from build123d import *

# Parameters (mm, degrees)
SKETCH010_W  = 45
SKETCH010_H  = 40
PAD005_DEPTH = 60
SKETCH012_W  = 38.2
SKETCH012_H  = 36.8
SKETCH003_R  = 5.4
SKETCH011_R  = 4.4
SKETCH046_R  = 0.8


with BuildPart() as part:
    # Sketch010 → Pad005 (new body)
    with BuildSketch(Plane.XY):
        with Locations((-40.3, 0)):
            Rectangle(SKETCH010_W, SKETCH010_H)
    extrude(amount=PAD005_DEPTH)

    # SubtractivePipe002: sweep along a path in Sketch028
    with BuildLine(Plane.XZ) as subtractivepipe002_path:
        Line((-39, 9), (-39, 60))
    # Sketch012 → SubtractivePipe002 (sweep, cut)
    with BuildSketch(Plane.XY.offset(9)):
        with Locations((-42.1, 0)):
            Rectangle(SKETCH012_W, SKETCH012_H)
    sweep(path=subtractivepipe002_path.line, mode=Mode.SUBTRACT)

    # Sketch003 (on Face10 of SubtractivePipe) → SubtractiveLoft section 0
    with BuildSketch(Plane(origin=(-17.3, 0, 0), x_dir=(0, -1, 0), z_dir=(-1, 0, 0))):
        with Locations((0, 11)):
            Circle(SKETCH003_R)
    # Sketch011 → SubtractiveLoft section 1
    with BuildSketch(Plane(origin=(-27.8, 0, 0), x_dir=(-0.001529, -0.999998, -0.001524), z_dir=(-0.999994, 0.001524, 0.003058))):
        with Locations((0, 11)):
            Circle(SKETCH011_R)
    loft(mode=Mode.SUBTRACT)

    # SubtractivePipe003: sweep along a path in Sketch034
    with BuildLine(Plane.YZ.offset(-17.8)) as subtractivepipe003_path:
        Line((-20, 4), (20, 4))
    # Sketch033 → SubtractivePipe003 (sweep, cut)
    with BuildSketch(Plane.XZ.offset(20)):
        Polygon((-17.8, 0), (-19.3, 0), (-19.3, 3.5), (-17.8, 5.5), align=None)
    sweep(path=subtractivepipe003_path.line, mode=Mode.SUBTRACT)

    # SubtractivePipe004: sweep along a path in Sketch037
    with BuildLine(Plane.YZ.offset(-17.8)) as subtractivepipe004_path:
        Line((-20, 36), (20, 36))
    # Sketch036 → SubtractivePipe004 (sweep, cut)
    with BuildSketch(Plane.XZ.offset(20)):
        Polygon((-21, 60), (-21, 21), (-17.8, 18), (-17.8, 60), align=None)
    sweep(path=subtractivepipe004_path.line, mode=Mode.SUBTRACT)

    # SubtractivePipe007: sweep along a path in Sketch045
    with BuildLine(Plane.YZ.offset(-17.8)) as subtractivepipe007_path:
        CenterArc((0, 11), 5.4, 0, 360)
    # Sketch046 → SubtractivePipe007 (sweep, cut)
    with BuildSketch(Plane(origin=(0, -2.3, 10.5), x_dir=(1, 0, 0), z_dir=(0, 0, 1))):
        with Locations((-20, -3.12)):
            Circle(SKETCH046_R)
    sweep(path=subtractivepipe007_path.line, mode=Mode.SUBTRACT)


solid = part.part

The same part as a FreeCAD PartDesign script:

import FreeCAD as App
import Part
import Sketcher
from FreeCAD import Vector
Q = App.Units.Quantity

doc = App.newDocument("Part")
body = doc.addObject("PartDesign::Body", "Body")

# Sketch on XY plane
sketch1 = body.newObject("Sketcher::SketchObject", "Sketch")
sketch1.AttachmentSupport = (doc.getObject("XY_Plane"), [""])
sketch1.MapMode = "FlatFace"
sketch1.addGeometry(Part.LineSegment(Vector(-62.8, 20, 0), Vector(-62.8, -20, 0)), False)
sketch1.addGeometry(Part.LineSegment(Vector(-62.8, -20, 0), Vector(-17.8, -20, 0)), False)
sketch1.addGeometry(Part.LineSegment(Vector(-17.8, -20, 0), Vector(-17.8, 20, 0)), False)
sketch1.addGeometry(Part.LineSegment(Vector(-17.8, 20, 0), Vector(-62.8, 20, 0)), False)
sketch1.addConstraint(Sketcher.Constraint("Coincident", 0, 2, 1, 1))
sketch1.addConstraint(Sketcher.Constraint("Coincident", 1, 2, 2, 1))
sketch1.addConstraint(Sketcher.Constraint("Coincident", 2, 2, 3, 1))
sketch1.addConstraint(Sketcher.Constraint("Coincident", 3, 2, 0, 1))
sketch1.addConstraint(Sketcher.Constraint("Vertical", 0))
sketch1.addConstraint(Sketcher.Constraint("Horizontal", 1))
sketch1.addConstraint(Sketcher.Constraint("Vertical", 2))
sketch1.addConstraint(Sketcher.Constraint("Horizontal", 3))
sketch1.addConstraint(Sketcher.Constraint("DistanceX", 1, 1, 1, 2, Q("45 mm")))
sketch1.addConstraint(Sketcher.Constraint("DistanceY", 0, 2, 0, 1, Q("40 mm")))
sketch1.addConstraint(Sketcher.Constraint("DistanceY", 0, 2, -1, 1, Q("20 mm")))
sketch1.addConstraint(Sketcher.Constraint("DistanceX", 0, 2, -1, 1, Q("62.8 mm")))
pad1 = body.newObject("PartDesign::Pad", "Pad")
pad1.Profile = sketch1
pad1.Length = 60

# Sketch on XY plane
sketch2 = body.newObject("Sketcher::SketchObject", "Sketch001")
sketch2.AttachmentSupport = (doc.getObject("XY_Plane"), [""])
sketch2.MapMode = "FlatFace"
sketch2.AttachmentOffset = App.Placement(Vector(0, 0, 9), App.Rotation())
sketch2.addGeometry(Part.LineSegment(Vector(-61.2, 18.4, 0), Vector(-61.2, -18.4, 0)), False)
sketch2.addGeometry(Part.LineSegment(Vector(-61.2, -18.4, 0), Vector(-23, -18.4, 0)), False)
sketch2.addGeometry(Part.LineSegment(Vector(-23, -18.4, 0), Vector(-23, 18.4, 0)), False)
sketch2.addGeometry(Part.LineSegment(Vector(-23, 18.4, 0), Vector(-61.2, 18.4, 0)), False)
sketch2.addConstraint(Sketcher.Constraint("Coincident", 0, 2, 1, 1))
sketch2.addConstraint(Sketcher.Constraint("Coincident", 1, 2, 2, 1))
sketch2.addConstraint(Sketcher.Constraint("Coincident", 2, 2, 3, 1))
sketch2.addConstraint(Sketcher.Constraint("Coincident", 3, 2, 0, 1))
sketch2.addConstraint(Sketcher.Constraint("Vertical", 0))
sketch2.addConstraint(Sketcher.Constraint("Horizontal", 1))
sketch2.addConstraint(Sketcher.Constraint("Vertical", 2))
sketch2.addConstraint(Sketcher.Constraint("Horizontal", 3))
sketch2.addConstraint(Sketcher.Constraint("DistanceX", 1, 1, 1, 2, Q("38.2 mm")))
sketch2.addConstraint(Sketcher.Constraint("DistanceY", 0, 2, 0, 1, Q("36.8 mm")))
sketch2.addConstraint(Sketcher.Constraint("DistanceX", 1, 2, -1, 1, Q("23 mm")))
sketch2.addConstraint(Sketcher.Constraint("DistanceY", 0, 2, -1, 1, Q("18.4 mm")))

# Sketch on XZ plane
sketch3 = body.newObject("Sketcher::SketchObject", "Sketch002")
sketch3.AttachmentSupport = (doc.getObject("XZ_Plane"), [""])
sketch3.MapMode = "FlatFace"
sketch3.addGeometry(Part.LineSegment(Vector(-39, 9, 0), Vector(-39, 60, 0)), False)
sketch3.addConstraint(Sketcher.Constraint("Vertical", 0))
sketch3.addConstraint(Sketcher.Constraint("DistanceY", 0, 1, 0, 2, Q("51 mm")))
sketch3.addConstraint(Sketcher.Constraint("DistanceX", 0, 1, -1, 1, Q("39 mm")))
sketch3.addConstraint(Sketcher.Constraint("DistanceY", -1, 1, 0, 1, Q("9 mm")))
doc.recompute()

subtractivepipe = body.newObject("PartDesign::SubtractivePipe", "SubtractivePipe")
subtractivepipe.Profile = sketch2
subtractivepipe.Spine = (sketch3, ["Edge1"])

# Sketch on YZ plane
sketch4 = body.newObject("Sketcher::SketchObject", "Sketch003")
sketch4.AttachmentSupport = (doc.getObject("YZ_Plane"), [""])
sketch4.MapMode = "FlatFace"
sketch4.AttachmentOffset = App.Placement(Vector(0, 0, -17.3), App.Rotation())
sketch4.addGeometry(Part.Circle(Vector(0, 11, 0), Vector(0, 0, 1), 5.4), False)
sketch4.addConstraint(Sketcher.Constraint("PointOnObject", 0, 3, -2))
sketch4.addConstraint(Sketcher.Constraint("Diameter", 0, Q("10.8 mm")))
sketch4.addConstraint(Sketcher.Constraint("DistanceY", -1, 1, 0, 3, Q("11 mm")))

# Sketch on an angled plane
sketch5 = body.newObject("Sketcher::SketchObject", "Sketch004")
sketch5.Placement = App.Placement(Vector(-27.8, 0, 0), App.Rotation(Vector(-0.001528666, -0.99999767, -0.001524001), Vector(0.00305567, -0.001528667, 0.999994163), Vector(-0.999994163, 0.001524, 0.003058), "ZXY"))
sketch5.addGeometry(Part.Circle(Vector(0, 11, 0), Vector(0, 0, 1), 4.4), False)
sketch5.addConstraint(Sketcher.Constraint("PointOnObject", 0, 3, -2))
sketch5.addConstraint(Sketcher.Constraint("Diameter", 0, Q("8.8 mm")))
sketch5.addConstraint(Sketcher.Constraint("DistanceY", -1, 1, 0, 3, Q("11 mm")))

subtractiveloft = body.newObject("PartDesign::SubtractiveLoft", "SubtractiveLoft")
subtractiveloft.Profile = sketch4
subtractiveloft.Sections = [sketch5]

# Sketch on XZ plane
sketch6 = body.newObject("Sketcher::SketchObject", "Sketch005")
sketch6.AttachmentSupport = (doc.getObject("XZ_Plane"), [""])
sketch6.MapMode = "FlatFace"
sketch6.AttachmentOffset = App.Placement(Vector(0, 0, 20), App.Rotation())
sketch6.addGeometry(Part.LineSegment(Vector(-19.3, 0, 0), Vector(-17.8, 0, 0)), False)
sketch6.addGeometry(Part.LineSegment(Vector(-17.8, 0, 0), Vector(-17.8, 5.5, 0)), False)
sketch6.addGeometry(Part.LineSegment(Vector(-17.8, 5.5, 0), Vector(-19.3, 3.5, 0)), False)
sketch6.addGeometry(Part.LineSegment(Vector(-19.3, 3.5, 0), Vector(-19.3, 0, 0)), False)
sketch6.addConstraint(Sketcher.Constraint("Coincident", 0, 2, 1, 1))
sketch6.addConstraint(Sketcher.Constraint("Coincident", 1, 2, 2, 1))
sketch6.addConstraint(Sketcher.Constraint("Coincident", 2, 2, 3, 1))
sketch6.addConstraint(Sketcher.Constraint("Coincident", 3, 2, 0, 1))
sketch6.addConstraint(Sketcher.Constraint("Horizontal", 0))
sketch6.addConstraint(Sketcher.Constraint("Vertical", 1))
sketch6.addConstraint(Sketcher.Constraint("Vertical", 3))
sketch6.addConstraint(Sketcher.Constraint("PointOnObject", 0, 2, -1))
sketch6.addConstraint(Sketcher.Constraint("DistanceX", 0, 1, 0, 2, Q("1.5 mm")))
sketch6.addConstraint(Sketcher.Constraint("DistanceY", 1, 1, 1, 2, Q("5.5 mm")))
sketch6.addConstraint(Sketcher.Constraint("DistanceY", 3, 2, 3, 1, Q("3.5 mm")))
sketch6.addConstraint(Sketcher.Constraint("DistanceX", 0, 2, -1, 1, Q("17.8 mm")))

# Sketch on XY plane
sketch7 = body.newObject("Sketcher::SketchObject", "Sketch006")
sketch7.AttachmentSupport = (doc.getObject("XY_Plane"), [""])
sketch7.MapMode = "FlatFace"
sketch7.AttachmentOffset = App.Placement(Vector(0, 0, 4), App.Rotation())
sketch7.addGeometry(Part.LineSegment(Vector(-17.8, -20, 0), Vector(-17.8, 20, 0)), False)
sketch7.addConstraint(Sketcher.Constraint("Vertical", 0))
sketch7.addConstraint(Sketcher.Constraint("DistanceY", 0, 1, 0, 2, Q("40 mm")))
sketch7.addConstraint(Sketcher.Constraint("DistanceY", 0, 1, -1, 1, Q("20 mm")))
sketch7.addConstraint(Sketcher.Constraint("DistanceX", 0, 1, -1, 1, Q("17.8 mm")))
doc.recompute()

subtractivepipe2 = body.newObject("PartDesign::SubtractivePipe", "SubtractivePipe001")
subtractivepipe2.Profile = sketch6
subtractivepipe2.Spine = (sketch7, ["Edge1"])

# Sketch on XZ plane
sketch8 = body.newObject("Sketcher::SketchObject", "Sketch007")
sketch8.AttachmentSupport = (doc.getObject("XZ_Plane"), [""])
sketch8.MapMode = "FlatFace"
sketch8.AttachmentOffset = App.Placement(Vector(0, 0, 20), App.Rotation())
sketch8.addGeometry(Part.LineSegment(Vector(-21, 60, 0), Vector(-21, 21, 0)), False)
sketch8.addGeometry(Part.LineSegment(Vector(-21, 21, 0), Vector(-17.8, 18, 0)), False)
sketch8.addGeometry(Part.LineSegment(Vector(-17.8, 18, 0), Vector(-17.8, 60, 0)), False)
sketch8.addGeometry(Part.LineSegment(Vector(-17.8, 60, 0), Vector(-21, 60, 0)), False)
sketch8.addConstraint(Sketcher.Constraint("Coincident", 0, 2, 1, 1))
sketch8.addConstraint(Sketcher.Constraint("Coincident", 1, 2, 2, 1))
sketch8.addConstraint(Sketcher.Constraint("Coincident", 2, 2, 3, 1))
sketch8.addConstraint(Sketcher.Constraint("Coincident", 3, 2, 0, 1))
sketch8.addConstraint(Sketcher.Constraint("Vertical", 0))
sketch8.addConstraint(Sketcher.Constraint("Vertical", 2))
sketch8.addConstraint(Sketcher.Constraint("Horizontal", 3))
sketch8.addConstraint(Sketcher.Constraint("DistanceY", 0, 2, 0, 1, Q("39 mm")))
sketch8.addConstraint(Sketcher.Constraint("DistanceY", 2, 1, 2, 2, Q("42 mm")))
sketch8.addConstraint(Sketcher.Constraint("DistanceX", 3, 2, 3, 1, Q("3.2 mm")))
sketch8.addConstraint(Sketcher.Constraint("DistanceX", 0, 2, -1, 1, Q("21 mm")))
sketch8.addConstraint(Sketcher.Constraint("DistanceY", -1, 1, 0, 2, Q("21 mm")))

# Sketch on XY plane
sketch9 = body.newObject("Sketcher::SketchObject", "Sketch008")
sketch9.AttachmentSupport = (doc.getObject("XY_Plane"), [""])
sketch9.MapMode = "FlatFace"
sketch9.AttachmentOffset = App.Placement(Vector(0, 0, 36), App.Rotation())
sketch9.addGeometry(Part.LineSegment(Vector(-17.8, -20, 0), Vector(-17.8, 20, 0)), False)
sketch9.addConstraint(Sketcher.Constraint("Vertical", 0))
sketch9.addConstraint(Sketcher.Constraint("DistanceY", 0, 1, 0, 2, Q("40 mm")))
sketch9.addConstraint(Sketcher.Constraint("DistanceY", 0, 1, -1, 1, Q("20 mm")))
sketch9.addConstraint(Sketcher.Constraint("DistanceX", 0, 1, -1, 1, Q("17.8 mm")))
doc.recompute()

subtractivepipe3 = body.newObject("PartDesign::SubtractivePipe", "SubtractivePipe002")
subtractivepipe3.Profile = sketch8
subtractivepipe3.Spine = (sketch9, ["Edge1"])

# Sketch on XY plane
sketch10 = body.newObject("Sketcher::SketchObject", "Sketch009")
sketch10.AttachmentSupport = (doc.getObject("XY_Plane"), [""])
sketch10.MapMode = "FlatFace"
sketch10.AttachmentOffset = App.Placement(Vector(0, 0, 10.5), App.Rotation())
sketch10.addGeometry(Part.Circle(Vector(-20, -5.42, 0), Vector(0, 0, 1), 0.8), False)
sketch10.addConstraint(Sketcher.Constraint("Diameter", 0, Q("1.6 mm")))
sketch10.addConstraint(Sketcher.Constraint("DistanceX", 0, 3, -1, 1, Q("20 mm")))
sketch10.addConstraint(Sketcher.Constraint("DistanceY", 0, 3, -1, 1, Q("5.42 mm")))

# Sketch on YZ plane
sketch11 = body.newObject("Sketcher::SketchObject", "Sketch010")
sketch11.AttachmentSupport = (doc.getObject("YZ_Plane"), [""])
sketch11.MapMode = "FlatFace"
sketch11.AttachmentOffset = App.Placement(Vector(0, 0, -17.8), App.Rotation())
sketch11.addGeometry(Part.Circle(Vector(0, 11, 0), Vector(0, 0, 1), 5.4), False)
sketch11.addConstraint(Sketcher.Constraint("PointOnObject", 0, 3, -2))
sketch11.addConstraint(Sketcher.Constraint("Diameter", 0, Q("10.8 mm")))
sketch11.addConstraint(Sketcher.Constraint("DistanceY", -1, 1, 0, 3, Q("11 mm")))
doc.recompute()

subtractivepipe4 = body.newObject("PartDesign::SubtractivePipe", "SubtractivePipe003")
subtractivepipe4.Profile = sketch10
subtractivepipe4.Spine = (sketch11, ["Edge1"])

doc.recompute()
